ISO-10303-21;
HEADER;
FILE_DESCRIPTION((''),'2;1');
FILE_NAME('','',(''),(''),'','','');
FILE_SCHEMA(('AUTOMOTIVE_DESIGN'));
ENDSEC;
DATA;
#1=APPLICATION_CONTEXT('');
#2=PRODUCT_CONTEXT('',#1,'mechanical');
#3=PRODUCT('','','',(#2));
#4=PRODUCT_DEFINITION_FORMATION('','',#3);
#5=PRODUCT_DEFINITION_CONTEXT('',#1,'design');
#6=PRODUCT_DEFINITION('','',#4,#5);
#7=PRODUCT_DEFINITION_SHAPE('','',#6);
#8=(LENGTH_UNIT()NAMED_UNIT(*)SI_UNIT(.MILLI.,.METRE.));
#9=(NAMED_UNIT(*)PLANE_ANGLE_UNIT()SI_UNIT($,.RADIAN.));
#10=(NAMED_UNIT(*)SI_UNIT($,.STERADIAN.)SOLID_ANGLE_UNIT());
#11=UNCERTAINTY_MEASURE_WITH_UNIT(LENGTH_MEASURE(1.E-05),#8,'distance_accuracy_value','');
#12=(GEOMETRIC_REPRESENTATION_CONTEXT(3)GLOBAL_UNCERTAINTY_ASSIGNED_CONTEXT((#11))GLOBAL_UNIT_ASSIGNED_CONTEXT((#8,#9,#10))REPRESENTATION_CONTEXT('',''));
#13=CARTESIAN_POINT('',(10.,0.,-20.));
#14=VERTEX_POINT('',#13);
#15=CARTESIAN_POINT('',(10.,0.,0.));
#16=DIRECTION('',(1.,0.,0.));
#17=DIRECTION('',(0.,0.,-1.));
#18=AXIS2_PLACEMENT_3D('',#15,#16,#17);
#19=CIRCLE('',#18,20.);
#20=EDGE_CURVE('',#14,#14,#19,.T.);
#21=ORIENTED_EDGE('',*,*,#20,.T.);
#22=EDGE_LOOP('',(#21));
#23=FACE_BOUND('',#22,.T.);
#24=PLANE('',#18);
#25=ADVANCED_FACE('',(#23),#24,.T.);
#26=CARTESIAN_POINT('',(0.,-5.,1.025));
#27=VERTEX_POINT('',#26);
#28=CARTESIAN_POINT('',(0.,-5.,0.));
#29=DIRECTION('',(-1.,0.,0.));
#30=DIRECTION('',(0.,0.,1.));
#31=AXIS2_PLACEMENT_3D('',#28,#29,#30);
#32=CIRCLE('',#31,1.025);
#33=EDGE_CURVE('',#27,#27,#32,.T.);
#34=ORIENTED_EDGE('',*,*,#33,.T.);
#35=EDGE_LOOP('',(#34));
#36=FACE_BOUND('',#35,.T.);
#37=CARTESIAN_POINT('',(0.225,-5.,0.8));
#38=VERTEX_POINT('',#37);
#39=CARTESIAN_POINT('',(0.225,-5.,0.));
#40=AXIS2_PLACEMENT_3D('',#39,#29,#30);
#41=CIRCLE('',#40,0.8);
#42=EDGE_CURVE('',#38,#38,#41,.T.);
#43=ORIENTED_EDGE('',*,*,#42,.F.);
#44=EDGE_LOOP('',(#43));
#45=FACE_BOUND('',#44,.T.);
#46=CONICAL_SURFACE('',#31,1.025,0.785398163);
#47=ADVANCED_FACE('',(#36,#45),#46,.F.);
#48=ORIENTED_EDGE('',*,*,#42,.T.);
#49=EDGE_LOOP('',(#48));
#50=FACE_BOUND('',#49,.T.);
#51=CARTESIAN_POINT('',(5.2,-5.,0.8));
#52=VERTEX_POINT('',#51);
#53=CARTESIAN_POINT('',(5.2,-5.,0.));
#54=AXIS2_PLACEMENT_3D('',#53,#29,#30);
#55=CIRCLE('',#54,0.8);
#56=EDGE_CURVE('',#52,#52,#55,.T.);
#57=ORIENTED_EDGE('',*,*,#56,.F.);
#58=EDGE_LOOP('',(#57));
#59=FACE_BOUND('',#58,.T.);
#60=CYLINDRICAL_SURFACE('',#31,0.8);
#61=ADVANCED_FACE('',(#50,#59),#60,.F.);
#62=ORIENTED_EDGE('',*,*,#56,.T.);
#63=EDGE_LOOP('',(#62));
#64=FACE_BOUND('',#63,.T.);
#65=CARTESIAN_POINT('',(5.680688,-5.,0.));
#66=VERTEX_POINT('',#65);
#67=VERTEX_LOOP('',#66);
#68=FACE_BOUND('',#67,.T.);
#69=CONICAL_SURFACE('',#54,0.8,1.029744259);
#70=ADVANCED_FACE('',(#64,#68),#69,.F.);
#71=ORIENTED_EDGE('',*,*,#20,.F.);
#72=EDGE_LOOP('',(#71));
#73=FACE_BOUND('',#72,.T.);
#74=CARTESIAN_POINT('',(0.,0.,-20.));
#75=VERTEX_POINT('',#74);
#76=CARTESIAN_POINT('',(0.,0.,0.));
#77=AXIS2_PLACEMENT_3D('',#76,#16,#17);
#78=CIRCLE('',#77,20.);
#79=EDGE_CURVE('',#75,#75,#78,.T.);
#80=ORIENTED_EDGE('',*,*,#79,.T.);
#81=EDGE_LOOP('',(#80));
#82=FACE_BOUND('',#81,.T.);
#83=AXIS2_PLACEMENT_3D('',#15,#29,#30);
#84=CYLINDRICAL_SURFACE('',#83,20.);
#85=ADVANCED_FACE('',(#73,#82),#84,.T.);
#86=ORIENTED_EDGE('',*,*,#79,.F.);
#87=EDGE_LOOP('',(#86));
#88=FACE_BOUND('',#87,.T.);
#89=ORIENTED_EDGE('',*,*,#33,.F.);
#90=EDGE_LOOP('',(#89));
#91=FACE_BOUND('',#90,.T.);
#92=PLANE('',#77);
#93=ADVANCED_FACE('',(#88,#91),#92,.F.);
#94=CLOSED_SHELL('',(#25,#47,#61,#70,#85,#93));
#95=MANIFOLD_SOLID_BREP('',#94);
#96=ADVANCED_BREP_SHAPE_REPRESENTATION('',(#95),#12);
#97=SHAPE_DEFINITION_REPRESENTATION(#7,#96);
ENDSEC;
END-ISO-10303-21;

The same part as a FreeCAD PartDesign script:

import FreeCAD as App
import Part
import Sketcher

V = App.Vector
Q = App.Units.Quantity

doc = App.newDocument("Part")
body = doc.addObject("PartDesign::Body", "Body")

sketch1 = body.newObject("Sketcher::SketchObject", "Sketch")
sketch1.AttachmentSupport = (doc.getObject("YZ_Plane"), [""])
sketch1.MapMode = "FlatFace"
sketch1.addGeometry(Part.Circle(V(0, 0, 0), V(0, 0, 1), 20), False)
sketch1.addConstraint([
    Sketcher.Constraint("Coincident", 0, 3, -1, 1),
    Sketcher.Constraint("Diameter", 0, Q("40 mm")),
])
pad1 = body.newObject("PartDesign::Pad", "Pad")
pad1.Profile = sketch1
pad1.Length = 10

sketch2 = body.newObject("Sketcher::SketchObject", "Sketch001")
sketch2.AttachmentSupport = (doc.getObject("YZ_Plane"), [""])
sketch2.MapMode = "FlatFace"
sketch2.addGeometry(Part.Circle(V(-5, 0, 0), V(0, 0, 1), 0.8), False)
sketch2.addConstraint([
    Sketcher.Constraint("PointOnObject", 0, 3, -1),
    Sketcher.Constraint("Diameter", 0, Q("1.6 mm")),
    Sketcher.Constraint("DistanceX", 0, 3, -1, 1, Q("5 mm")),
])
doc.recompute()
hole = body.newObject("PartDesign::Hole", "Hole")
hole.Profile = sketch2
hole.ThreadType = "None"
hole.Diameter = 1.6
hole.DepthType = "Dimension"
hole.Depth = 5.2
hole.DrillPoint = "Angled"
hole.DrillPointAngle = 118
hole.HoleCutType = "Countersink"
hole.HoleCutDiameter = 2.05
hole.HoleCutCountersinkAngle = 90
hole.Reversed = True

doc.recompute()
